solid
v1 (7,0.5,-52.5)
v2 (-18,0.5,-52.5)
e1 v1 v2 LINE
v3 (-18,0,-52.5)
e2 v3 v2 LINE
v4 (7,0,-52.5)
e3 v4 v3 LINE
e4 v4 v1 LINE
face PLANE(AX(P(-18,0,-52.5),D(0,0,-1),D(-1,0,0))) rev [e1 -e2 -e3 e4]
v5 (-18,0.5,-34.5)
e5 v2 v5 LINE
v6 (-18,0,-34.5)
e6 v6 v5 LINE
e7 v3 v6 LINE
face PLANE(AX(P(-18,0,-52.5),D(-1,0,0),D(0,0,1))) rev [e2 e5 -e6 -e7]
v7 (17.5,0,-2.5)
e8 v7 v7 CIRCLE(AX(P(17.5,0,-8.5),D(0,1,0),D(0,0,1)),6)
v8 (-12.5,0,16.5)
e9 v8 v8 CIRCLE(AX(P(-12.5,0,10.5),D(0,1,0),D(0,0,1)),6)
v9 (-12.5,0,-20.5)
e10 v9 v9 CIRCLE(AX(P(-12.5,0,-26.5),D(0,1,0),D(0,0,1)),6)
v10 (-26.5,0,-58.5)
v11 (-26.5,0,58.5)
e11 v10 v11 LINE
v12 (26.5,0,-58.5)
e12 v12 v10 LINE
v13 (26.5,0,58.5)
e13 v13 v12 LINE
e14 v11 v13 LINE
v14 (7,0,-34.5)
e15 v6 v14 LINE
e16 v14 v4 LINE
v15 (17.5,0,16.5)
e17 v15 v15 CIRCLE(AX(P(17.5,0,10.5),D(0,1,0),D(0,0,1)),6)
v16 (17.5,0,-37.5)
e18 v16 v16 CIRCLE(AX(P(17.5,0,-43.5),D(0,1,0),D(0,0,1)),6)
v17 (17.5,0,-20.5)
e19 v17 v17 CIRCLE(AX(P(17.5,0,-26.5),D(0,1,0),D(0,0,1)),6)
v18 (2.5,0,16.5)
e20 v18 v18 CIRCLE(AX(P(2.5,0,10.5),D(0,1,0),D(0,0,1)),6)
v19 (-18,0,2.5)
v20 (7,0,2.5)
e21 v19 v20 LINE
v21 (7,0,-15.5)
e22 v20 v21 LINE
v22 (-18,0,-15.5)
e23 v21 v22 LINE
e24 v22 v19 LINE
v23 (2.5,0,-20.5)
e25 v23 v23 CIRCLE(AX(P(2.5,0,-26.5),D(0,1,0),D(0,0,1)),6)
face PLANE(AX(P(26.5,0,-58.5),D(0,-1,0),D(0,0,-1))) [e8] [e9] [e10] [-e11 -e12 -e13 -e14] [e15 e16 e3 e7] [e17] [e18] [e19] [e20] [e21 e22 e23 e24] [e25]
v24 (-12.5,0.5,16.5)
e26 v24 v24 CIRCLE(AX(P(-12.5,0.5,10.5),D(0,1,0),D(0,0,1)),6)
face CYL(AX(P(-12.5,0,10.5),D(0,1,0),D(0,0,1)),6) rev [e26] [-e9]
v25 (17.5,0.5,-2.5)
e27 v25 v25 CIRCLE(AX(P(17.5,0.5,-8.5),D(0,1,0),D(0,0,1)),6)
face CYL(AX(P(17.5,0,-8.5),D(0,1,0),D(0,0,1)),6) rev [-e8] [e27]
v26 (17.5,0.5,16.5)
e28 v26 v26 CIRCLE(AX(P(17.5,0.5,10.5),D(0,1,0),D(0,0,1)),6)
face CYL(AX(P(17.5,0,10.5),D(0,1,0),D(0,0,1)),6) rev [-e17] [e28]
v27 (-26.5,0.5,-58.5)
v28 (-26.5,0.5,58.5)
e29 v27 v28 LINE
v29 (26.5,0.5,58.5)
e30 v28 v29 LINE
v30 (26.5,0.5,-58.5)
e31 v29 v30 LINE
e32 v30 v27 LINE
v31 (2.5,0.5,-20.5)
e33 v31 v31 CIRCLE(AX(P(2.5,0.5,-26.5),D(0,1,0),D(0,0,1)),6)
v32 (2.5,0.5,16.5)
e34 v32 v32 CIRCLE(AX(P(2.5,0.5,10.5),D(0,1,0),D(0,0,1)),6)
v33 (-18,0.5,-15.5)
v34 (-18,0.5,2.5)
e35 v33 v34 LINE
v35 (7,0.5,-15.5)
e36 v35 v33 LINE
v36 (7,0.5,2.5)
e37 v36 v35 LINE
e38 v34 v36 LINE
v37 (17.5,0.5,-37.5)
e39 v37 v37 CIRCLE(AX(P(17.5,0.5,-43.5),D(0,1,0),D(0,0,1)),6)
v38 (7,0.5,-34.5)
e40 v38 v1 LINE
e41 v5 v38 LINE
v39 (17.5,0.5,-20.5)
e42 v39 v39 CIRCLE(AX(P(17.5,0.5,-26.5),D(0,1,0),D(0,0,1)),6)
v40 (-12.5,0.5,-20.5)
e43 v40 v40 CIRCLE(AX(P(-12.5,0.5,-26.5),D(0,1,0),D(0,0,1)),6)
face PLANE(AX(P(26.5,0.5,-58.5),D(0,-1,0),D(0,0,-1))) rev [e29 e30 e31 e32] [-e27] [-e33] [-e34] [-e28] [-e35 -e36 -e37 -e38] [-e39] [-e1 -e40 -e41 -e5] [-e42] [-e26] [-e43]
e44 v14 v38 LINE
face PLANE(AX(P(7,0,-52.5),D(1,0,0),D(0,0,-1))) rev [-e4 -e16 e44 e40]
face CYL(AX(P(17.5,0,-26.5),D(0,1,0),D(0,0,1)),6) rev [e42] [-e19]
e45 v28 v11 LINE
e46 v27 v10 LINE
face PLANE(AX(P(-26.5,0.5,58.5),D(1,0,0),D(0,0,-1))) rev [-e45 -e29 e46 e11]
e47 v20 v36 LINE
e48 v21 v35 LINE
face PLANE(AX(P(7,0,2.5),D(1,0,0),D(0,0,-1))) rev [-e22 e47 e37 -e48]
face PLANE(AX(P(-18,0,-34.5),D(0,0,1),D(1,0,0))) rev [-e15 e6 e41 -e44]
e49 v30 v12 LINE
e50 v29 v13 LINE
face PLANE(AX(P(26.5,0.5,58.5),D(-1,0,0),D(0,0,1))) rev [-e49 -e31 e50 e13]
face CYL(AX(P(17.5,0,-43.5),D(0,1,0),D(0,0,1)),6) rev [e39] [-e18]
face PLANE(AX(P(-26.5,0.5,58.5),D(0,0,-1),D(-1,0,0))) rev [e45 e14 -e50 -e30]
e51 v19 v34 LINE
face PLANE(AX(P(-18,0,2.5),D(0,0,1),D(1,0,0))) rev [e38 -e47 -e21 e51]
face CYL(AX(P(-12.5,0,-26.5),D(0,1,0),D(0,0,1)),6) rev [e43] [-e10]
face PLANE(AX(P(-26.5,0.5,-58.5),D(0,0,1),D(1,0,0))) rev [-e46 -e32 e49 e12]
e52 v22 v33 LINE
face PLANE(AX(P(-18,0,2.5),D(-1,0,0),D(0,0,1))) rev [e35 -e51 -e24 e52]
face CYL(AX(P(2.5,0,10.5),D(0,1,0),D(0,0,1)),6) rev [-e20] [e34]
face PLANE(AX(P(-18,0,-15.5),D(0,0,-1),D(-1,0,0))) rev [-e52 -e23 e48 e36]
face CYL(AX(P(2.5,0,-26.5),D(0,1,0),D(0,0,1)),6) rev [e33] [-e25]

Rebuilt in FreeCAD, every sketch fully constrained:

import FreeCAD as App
import Part
import Sketcher
from FreeCAD import Vector
Q = App.Units.Quantity

doc = App.newDocument("Part")
body = doc.addObject("PartDesign::Body", "Body")

# Sketch on XZ plane
sketch1 = body.newObject("Sketcher::SketchObject", "Sketch")
sketch1.AttachmentSupport = (doc.getObject("XZ_Plane"), [""])
sketch1.MapMode = "FlatFace"
sketch1.addGeometry([
    Part.LineSegment(Vector(-26, -58, 0), Vector(-26, 58, 0)),
    Part.LineSegment(Vector(-26, 58, 0), Vector(26, 58, 0)),
    Part.LineSegment(Vector(26, 58, 0), Vector(26, -58, 0)),
    Part.LineSegment(Vector(26, -58, 0), Vector(-26, -58, 0)),
], False)
sketch1.addConstraint([
    Sketcher.Constraint("Coincident", 0, 2, 1, 1),
    Sketcher.Constraint("Coincident", 1, 2, 2, 1),
    Sketcher.Constraint("Coincident", 2, 2, 3, 1),
    Sketcher.Constraint("Coincident", 3, 2, 0, 1),
    Sketcher.Constraint("Vertical", 0),
    Sketcher.Constraint("Horizontal", 1),
    Sketcher.Constraint("Vertical", 2),
    Sketcher.Constraint("Horizontal", 3),
    Sketcher.Constraint("Symmetric", 0, 2, 2, 2, -1, 1),
    Sketcher.Constraint("DistanceX", 1, 1, 1, 2, Q("53 mm")),
    Sketcher.Constraint("DistanceY", 0, 1, 0, 2, Q("117 mm")),
])
pad1 = body.newObject("PartDesign::Pad", "Pad")
pad1.Profile = sketch1
pad1.Length = 0.5
pad1.Reversed = True

# Sketch on XZ plane
sketch2 = body.newObject("Sketcher::SketchObject", "Sketch001")
sketch2.AttachmentSupport = (doc.getObject("XZ_Plane"), [""])
sketch2.MapMode = "FlatFace"
sketch2.AttachmentOffset = App.Placement(Vector(0, 0, -0.5), App.Rotation())
sketch2.addGeometry([
    Part.LineSegment(Vector(-18, -52, 0), Vector(-18, -34, 0)),  # 0
    Part.LineSegment(Vector(-18, -34, 0), Vector(7, -34, 0)),  # 1
    Part.LineSegment(Vector(7, -34, 0), Vector(7, -52, 0)),  # 2
    Part.LineSegment(Vector(7, -52, 0), Vector(-18, -52, 0)),  # 3
    Part.LineSegment(Vector(-18, -16, 0), Vector(-18, 2, 0)),  # 4
    Part.LineSegment(Vector(-18, 2, 0), Vector(7, 2, 0)),  # 5
    Part.LineSegment(Vector(7, 2, 0), Vector(7, -16, 0)),  # 6
    Part.LineSegment(Vector(7, -16, 0), Vector(-18, -16, 0)),  # 7
], False)
sketch2.addConstraint([
    Sketcher.Constraint("Coincident", 0, 2, 1, 1),
    Sketcher.Constraint("Coincident", 1, 2, 2, 1),
    Sketcher.Constraint("Coincident", 2, 2, 3, 1),
    Sketcher.Constraint("Coincident", 3, 2, 0, 1),
    Sketcher.Constraint("Coincident", 4, 2, 5, 1),
    Sketcher.Constraint("Coincident", 5, 2, 6, 1),
    Sketcher.Constraint("Coincident", 6, 2, 7, 1),
    Sketcher.Constraint("Coincident", 7, 2, 4, 1),
    Sketcher.Constraint("Vertical", 0),
    Sketcher.Constraint("Horizontal", 1),
    Sketcher.Constraint("Vertical", 2),
    Sketcher.Constraint("Horizontal", 3),
    Sketcher.Constraint("Vertical", 4),
    Sketcher.Constraint("Horizontal", 5),
    Sketcher.Constraint("Vertical", 6),
    Sketcher.Constraint("Horizontal", 7),
    Sketcher.Constraint("Vertical", 3, 2, 4, 2),
    Sketcher.Constraint("Vertical", 2, 2, 5, 2),
    Sketcher.Constraint("Equal", 2, 4),
    Sketcher.Constraint("DistanceX", 1, 1, 1, 2, Q("25 mm")),
    Sketcher.Constraint("DistanceY", 0, 1, 0, 2, Q("18 mm")),
    Sketcher.Constraint("DistanceX", 0, 2, -1, 1, Q("18 mm")),
    Sketcher.Constraint("DistanceY", 0, 2, 4, 2, Q("37 mm")),
    Sketcher.Constraint("DistanceY", 0, 2, -1, 1, Q("34.5 mm")),
])
pocket1 = body.newObject("PartDesign::Pocket", "Pocket")
pocket1.Profile = sketch2
pocket1.Type = "ThroughAll"
pocket1.Reversed = True

# Sketch on XZ plane
sketch3 = body.newObject("Sketcher::SketchObject", "Sketch002")
sketch3.AttachmentSupport = (doc.getObject("XZ_Plane"), [""])
sketch3.MapMode = "FlatFace"
sketch3.AttachmentOffset = App.Placement(Vector(0, 0, -0.5), App.Rotation())
sketch3.addGeometry([
    Part.Circle(Vector(18, -44, 0), Vector(0, 0, 1), 6),  # 0
    Part.Circle(Vector(18, -26, 0), Vector(0, 0, 1), 6),  # 1
    Part.Circle(Vector(18, -8, 0), Vector(0, 0, 1), 6),  # 2
    Part.Circle(Vector(18, 10, 0), Vector(0, 0, 1), 6),  # 3
    Part.Circle(Vector(2, -26, 0), Vector(0, 0, 1), 6),  # 4
    Part.Circle(Vector(-12, -26, 0), Vector(0, 0, 1), 6),  # 5
    Part.Circle(Vector(2, 10, 0), Vector(0, 0, 1), 6),  # 6
    Part.Circle(Vector(-12, 10, 0), Vector(0, 0, 1), 6),  # 7
], False)
sketch3.addConstraint([
    Sketcher.Constraint("Equal", 0, 1),
    Sketcher.Constraint("Equal", 1, 2),
    Sketcher.Constraint("Equal", 2, 3),
    Sketcher.Constraint("Equal", 3, 4),
    Sketcher.Constraint("Equal", 4, 5),
    Sketcher.Constraint("Equal", 5, 6),
    Sketcher.Constraint("Equal", 6, 7),
    Sketcher.Constraint("Horizontal", 1, 3, 4, 3),
    Sketcher.Constraint("Horizontal", 4, 3, 5, 3),
    Sketcher.Constraint("Horizontal", 3, 3, 6, 3),
    Sketcher.Constraint("Horizontal", 6, 3, 7, 3),
    Sketcher.Constraint("Vertical", 0, 3, 1, 3),
    Sketcher.Constraint("Vertical", 1, 3, 2, 3),
    Sketcher.Constraint("Vertical", 2, 3, 3, 3),
    Sketcher.Constraint("Vertical", 4, 3, 6, 3),
    Sketcher.Constraint("Vertical", 5, 3, 7, 3),
    Sketcher.Constraint("Diameter", 0, Q("12 mm")),
    Sketcher.Constraint("DistanceY", 0, 3, 1, 3, Q("17 mm")),
    Sketcher.Constraint("DistanceY", 1, 3, 2, 3, Q("18 mm")),
    Sketcher.Constraint("DistanceY", 2, 3, 3, 3, Q("19 mm")),
    Sketcher.Constraint("DistanceX", 4, 3, 1, 3, Q("15 mm")),
    Sketcher.Constraint("DistanceX", 5, 3, 4, 3, Q("15 mm")),
    Sketcher.Constraint("DistanceX", -1, 1, 0, 3, Q("17.5 mm")),
    Sketcher.Constraint("DistanceY", 0, 3, -1, 1, Q("43.5 mm")),
])
pocket2 = body.newObject("PartDesign::Pocket", "Pocket001")
pocket2.Profile = sketch3
pocket2.Type = "ThroughAll"
pocket2.Reversed = True

doc.recompute()
